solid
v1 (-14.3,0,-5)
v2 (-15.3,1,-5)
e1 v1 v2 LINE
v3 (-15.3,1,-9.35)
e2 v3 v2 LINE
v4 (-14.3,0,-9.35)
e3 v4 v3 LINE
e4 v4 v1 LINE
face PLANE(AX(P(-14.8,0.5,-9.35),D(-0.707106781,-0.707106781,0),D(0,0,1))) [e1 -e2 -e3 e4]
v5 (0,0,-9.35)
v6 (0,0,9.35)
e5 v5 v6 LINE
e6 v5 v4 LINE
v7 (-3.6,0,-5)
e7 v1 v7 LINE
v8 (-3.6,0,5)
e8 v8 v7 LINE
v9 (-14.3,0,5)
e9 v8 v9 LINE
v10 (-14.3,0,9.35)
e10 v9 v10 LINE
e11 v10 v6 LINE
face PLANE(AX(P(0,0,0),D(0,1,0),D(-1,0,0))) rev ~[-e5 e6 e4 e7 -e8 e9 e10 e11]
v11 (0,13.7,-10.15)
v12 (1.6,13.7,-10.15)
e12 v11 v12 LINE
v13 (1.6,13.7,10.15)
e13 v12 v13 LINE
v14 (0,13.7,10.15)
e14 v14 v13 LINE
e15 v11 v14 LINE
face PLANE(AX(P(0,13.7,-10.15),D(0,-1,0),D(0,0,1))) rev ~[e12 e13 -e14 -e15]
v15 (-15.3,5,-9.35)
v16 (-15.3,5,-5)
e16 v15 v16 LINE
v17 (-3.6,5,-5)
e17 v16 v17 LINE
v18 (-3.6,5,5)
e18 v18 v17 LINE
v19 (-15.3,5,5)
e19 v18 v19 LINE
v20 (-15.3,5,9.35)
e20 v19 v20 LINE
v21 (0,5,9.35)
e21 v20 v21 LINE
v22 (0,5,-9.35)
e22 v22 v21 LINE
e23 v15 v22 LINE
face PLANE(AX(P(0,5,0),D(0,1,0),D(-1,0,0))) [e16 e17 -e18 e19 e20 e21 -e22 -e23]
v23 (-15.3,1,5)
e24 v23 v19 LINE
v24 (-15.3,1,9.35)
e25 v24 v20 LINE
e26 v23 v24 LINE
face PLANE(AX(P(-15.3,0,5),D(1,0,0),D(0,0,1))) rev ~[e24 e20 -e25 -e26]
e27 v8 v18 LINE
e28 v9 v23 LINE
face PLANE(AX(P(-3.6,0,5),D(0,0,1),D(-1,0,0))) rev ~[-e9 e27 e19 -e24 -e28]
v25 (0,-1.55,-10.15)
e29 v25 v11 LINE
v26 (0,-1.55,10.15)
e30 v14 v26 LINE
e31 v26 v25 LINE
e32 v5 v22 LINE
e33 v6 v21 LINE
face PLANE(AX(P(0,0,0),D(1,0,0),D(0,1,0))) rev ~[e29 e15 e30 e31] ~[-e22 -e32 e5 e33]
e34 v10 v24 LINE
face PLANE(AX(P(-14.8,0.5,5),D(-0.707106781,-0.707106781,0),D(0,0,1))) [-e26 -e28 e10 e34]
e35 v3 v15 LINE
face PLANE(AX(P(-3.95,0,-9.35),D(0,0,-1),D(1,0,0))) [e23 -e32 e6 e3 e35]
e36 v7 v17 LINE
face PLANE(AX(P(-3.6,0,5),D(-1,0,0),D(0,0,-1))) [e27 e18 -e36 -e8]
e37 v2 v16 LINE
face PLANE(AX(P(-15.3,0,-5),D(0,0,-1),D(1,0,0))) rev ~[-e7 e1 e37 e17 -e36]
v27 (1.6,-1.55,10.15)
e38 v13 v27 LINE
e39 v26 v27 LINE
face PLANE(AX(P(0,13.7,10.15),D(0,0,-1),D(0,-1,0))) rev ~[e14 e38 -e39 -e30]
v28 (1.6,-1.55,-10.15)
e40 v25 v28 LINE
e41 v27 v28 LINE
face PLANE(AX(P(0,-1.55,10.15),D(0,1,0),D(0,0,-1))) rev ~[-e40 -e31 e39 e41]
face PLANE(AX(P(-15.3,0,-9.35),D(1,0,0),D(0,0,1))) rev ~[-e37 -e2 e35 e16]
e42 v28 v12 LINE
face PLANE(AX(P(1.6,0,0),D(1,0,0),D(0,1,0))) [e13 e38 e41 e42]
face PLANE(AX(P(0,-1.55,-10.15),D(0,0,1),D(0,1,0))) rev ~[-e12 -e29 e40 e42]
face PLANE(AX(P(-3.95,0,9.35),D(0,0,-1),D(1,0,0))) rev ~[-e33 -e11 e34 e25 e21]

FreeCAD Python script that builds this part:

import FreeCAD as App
import Part
import Sketcher
from FreeCAD import Vector


def edges_at(feature, points):
    """Names of the edges that pass closest to the given points."""
    edges = feature.Shape.Edges
    near = lambda p: min(range(len(edges)), key=lambda i: edges[i].distToShape(Part.Vertex(*p))[0])
    return sorted({f"Edge{near(p) + 1}" for p in points})

doc = App.newDocument("Part")
body = doc.addObject("PartDesign::Body", "Body")

# Sketch on XZ plane
sketch1 = body.newObject("Sketcher::SketchObject", "Sketch")
sketch1.AttachmentSupport = (doc.getObject("XZ_Plane"), [""])
sketch1.MapMode = "FlatFace"
sketch1.addGeometry(Part.LineSegment(Vector(-15.3, 5, 0), Vector(-15.3, 9.3, 0)), False)
sketch1.addGeometry(Part.LineSegment(Vector(-15.3, 9.3, 0), Vector(0, 9.3, 0)), False)
sketch1.addGeometry(Part.LineSegment(Vector(0, 9.3, 0), Vector(0, -9.3, 0)), False)
sketch1.addGeometry(Part.LineSegment(Vector(0, -9.3, 0), Vector(-15.3, -9.3, 0)), False)
sketch1.addGeometry(Part.LineSegment(Vector(-15.3, -9.3, 0), Vector(-15.3, -5, 0)), False)
sketch1.addGeometry(Part.LineSegment(Vector(-15.3, -5, 0), Vector(-3.6, -5, 0)), False)
sketch1.addGeometry(Part.LineSegment(Vector(-3.6, -5, 0), Vector(-3.6, 5, 0)), False)
sketch1.addGeometry(Part.LineSegment(Vector(-3.6, 5, 0), Vector(-15.3, 5, 0)), False)
sketch1.addConstraint(Sketcher.Constraint("Coincident", 0, 2, 1, 1))
sketch1.addConstraint(Sketcher.Constraint("Coincident", 1, 2, 2, 1))
sketch1.addConstraint(Sketcher.Constraint("Coincident", 2, 2, 3, 1))
sketch1.addConstraint(Sketcher.Constraint("Coincident", 3, 2, 4, 1))
sketch1.addConstraint(Sketcher.Constraint("Coincident", 4, 2, 5, 1))
sketch1.addConstraint(Sketcher.Constraint("Coincident", 5, 2, 6, 1))
sketch1.addConstraint(Sketcher.Constraint("Coincident", 6, 2, 7, 1))
sketch1.addConstraint(Sketcher.Constraint("Coincident", 7, 2, 0, 1))
sketch1.addConstraint(Sketcher.Constraint("Vertical", 0))
sketch1.addConstraint(Sketcher.Constraint("Horizontal", 1))
sketch1.addConstraint(Sketcher.Constraint("Vertical", 2))
sketch1.addConstraint(Sketcher.Constraint("Horizontal", 3))
sketch1.addConstraint(Sketcher.Constraint("Vertical", 4))
sketch1.addConstraint(Sketcher.Constraint("Horizontal", 5))
sketch1.addConstraint(Sketcher.Constraint("Vertical", 6))
sketch1.addConstraint(Sketcher.Constraint("Horizontal", 7))
sketch1.addConstraint(Sketcher.Constraint("Symmetric", 1, 2, 2, 2, -1, 1))
sketch1.addConstraint(Sketcher.Constraint("Symmetric", 4, 2, 7, 2, -1))
sketch1.addConstraint(Sketcher.Constraint("DistanceY", 6, 1, 6, 2, 10.0))
sketch1.addConstraint(Sketcher.Constraint("DistanceX", 1, 1, 1, 2, 15.3))
sketch1.addConstraint(Sketcher.Constraint("DistanceY", 2, 2, 2, 1, 18.7))
sketch1.addConstraint(Sketcher.Constraint("DistanceX", 5, 2, -1, 1, 3.6))
pad1 = body.newObject("PartDesign::Pad", "Pad")
pad1.Profile = sketch1
pad1.Length = 5
pad1.Reversed = True

# Sketch on YZ plane
sketch2 = body.newObject("Sketcher::SketchObject", "Sketch001")
sketch2.AttachmentSupport = (doc.getObject("YZ_Plane"), [""])
sketch2.MapMode = "FlatFace"
sketch2.addGeometry(Part.LineSegment(Vector(14, -10, 0), Vector(14, 10, 0)), False)
sketch2.addGeometry(Part.LineSegment(Vector(14, 10, 0), Vector(-2, 10, 0)), False)
sketch2.addGeometry(Part.LineSegment(Vector(-2, 10, 0), Vector(-2, -10, 0)), False)
sketch2.addGeometry(Part.LineSegment(Vector(-2, -10, 0), Vector(14, -10, 0)), False)
sketch2.addConstraint(Sketcher.Constraint("Coincident", 0, 2, 1, 1))
sketch2.addConstraint(Sketcher.Constraint("Coincident", 1, 2, 2, 1))
sketch2.addConstraint(Sketcher.Constraint("Coincident", 2, 2, 3, 1))
sketch2.addConstraint(Sketcher.Constraint("Coincident", 3, 2, 0, 1))
sketch2.addConstraint(Sketcher.Constraint("Vertical", 0))
sketch2.addConstraint(Sketcher.Constraint("Horizontal", 1))
sketch2.addConstraint(Sketcher.Constraint("Vertical", 2))
sketch2.addConstraint(Sketcher.Constraint("Horizontal", 3))
sketch2.addConstraint(Sketcher.Constraint("DistanceY", 0, 1, 0, 2, 20.3))
sketch2.addConstraint(Sketcher.Constraint("DistanceX", 1, 2, 1, 1, 15.25))
sketch2.addConstraint(Sketcher.Constraint("DistanceX", 1, 2, -1, 1, 1.55))
sketch2.addConstraint(Sketcher.Constraint("DistanceY", -1, 1, 0, 2, 10.15))
pad2 = body.newObject("PartDesign::Pad", "Pad001")
pad2.Profile = sketch2
pad2.Length = 1.6
doc.recompute()

chamfer = body.newObject("PartDesign::Chamfer", "Chamfer")
chamfer.Base = (pad2, edges_at(pad2, [(-15.3, 0, -7.175), (-15.3, 0, 7.175)]))
chamfer.Size = 1

doc.recompute()
